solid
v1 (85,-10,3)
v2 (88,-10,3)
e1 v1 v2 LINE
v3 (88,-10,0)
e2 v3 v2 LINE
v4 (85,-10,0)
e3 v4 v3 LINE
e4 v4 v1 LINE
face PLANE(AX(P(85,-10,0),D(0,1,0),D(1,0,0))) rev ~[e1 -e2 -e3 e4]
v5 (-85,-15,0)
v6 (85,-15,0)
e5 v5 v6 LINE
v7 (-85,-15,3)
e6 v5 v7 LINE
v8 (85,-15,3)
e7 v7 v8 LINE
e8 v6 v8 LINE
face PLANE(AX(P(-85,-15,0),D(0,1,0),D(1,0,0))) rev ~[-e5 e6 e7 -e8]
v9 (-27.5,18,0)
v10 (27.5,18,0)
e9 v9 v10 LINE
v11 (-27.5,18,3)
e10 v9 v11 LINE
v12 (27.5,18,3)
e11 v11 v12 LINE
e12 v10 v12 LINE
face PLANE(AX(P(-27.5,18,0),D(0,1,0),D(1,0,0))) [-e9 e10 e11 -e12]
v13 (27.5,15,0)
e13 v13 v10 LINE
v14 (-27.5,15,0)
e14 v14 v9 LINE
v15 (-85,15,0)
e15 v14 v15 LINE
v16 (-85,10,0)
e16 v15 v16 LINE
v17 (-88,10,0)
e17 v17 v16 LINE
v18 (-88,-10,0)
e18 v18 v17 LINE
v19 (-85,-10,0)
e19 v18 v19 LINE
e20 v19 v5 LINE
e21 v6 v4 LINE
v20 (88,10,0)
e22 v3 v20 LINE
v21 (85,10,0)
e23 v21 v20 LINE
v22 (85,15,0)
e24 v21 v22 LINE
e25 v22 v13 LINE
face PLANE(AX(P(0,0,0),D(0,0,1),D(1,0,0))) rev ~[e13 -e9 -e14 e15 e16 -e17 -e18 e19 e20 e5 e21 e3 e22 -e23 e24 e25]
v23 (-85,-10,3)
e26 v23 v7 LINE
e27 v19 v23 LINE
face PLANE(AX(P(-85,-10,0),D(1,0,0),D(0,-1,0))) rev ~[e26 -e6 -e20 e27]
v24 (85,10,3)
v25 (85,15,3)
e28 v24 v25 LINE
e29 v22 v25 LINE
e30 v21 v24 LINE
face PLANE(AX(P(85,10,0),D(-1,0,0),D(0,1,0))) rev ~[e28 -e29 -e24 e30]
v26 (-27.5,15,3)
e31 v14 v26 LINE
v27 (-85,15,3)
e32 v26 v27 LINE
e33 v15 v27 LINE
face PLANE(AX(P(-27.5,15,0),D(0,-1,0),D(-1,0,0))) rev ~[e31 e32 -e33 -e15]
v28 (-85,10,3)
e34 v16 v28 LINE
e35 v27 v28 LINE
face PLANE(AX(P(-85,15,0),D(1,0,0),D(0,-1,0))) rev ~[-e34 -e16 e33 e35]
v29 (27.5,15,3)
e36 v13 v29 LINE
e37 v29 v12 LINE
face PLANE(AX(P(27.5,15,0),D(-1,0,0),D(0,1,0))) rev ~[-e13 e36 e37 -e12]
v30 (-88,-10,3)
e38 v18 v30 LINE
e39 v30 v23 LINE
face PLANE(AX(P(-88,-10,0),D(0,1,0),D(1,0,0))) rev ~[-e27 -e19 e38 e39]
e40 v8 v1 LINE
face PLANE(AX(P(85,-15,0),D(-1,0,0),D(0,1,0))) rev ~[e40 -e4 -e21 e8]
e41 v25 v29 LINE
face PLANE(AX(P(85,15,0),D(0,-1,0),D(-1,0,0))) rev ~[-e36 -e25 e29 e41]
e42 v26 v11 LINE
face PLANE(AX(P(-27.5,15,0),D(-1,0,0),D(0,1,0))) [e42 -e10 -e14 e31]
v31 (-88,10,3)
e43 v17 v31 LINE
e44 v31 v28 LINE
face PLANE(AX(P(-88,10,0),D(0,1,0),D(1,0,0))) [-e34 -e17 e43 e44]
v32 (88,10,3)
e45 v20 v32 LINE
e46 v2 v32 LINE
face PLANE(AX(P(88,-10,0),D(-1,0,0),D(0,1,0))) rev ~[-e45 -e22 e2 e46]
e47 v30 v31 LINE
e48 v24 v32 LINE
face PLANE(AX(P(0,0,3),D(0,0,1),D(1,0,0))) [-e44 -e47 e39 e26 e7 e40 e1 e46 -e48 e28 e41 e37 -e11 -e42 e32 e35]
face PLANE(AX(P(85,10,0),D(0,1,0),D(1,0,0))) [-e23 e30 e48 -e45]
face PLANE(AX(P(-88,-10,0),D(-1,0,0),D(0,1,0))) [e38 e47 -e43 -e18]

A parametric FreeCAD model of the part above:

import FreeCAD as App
import Part
import Sketcher
Q = App.Units.Quantity

doc = App.newDocument("Part")
body = doc.addObject("PartDesign::Body", "Body")

sketch1 = doc.addObject("Sketcher::SketchObject", "Sketch")
body.addObject(sketch1)
sketch1.AttachmentSupport = (doc.XY_Plane, [""])
sketch1.MapMode = "FlatFace"
sketch1.addGeometry([
    Part.LineSegment(App.Vector(85, 15, 0), App.Vector(27.5, 15, 0)),
    Part.LineSegment(App.Vector(27.5, 15, 0), App.Vector(27.5, 18, 0)),
    Part.LineSegment(App.Vector(27.5, 18, 0), App.Vector(-27.5, 18, 0)),
    Part.LineSegment(App.Vector(-27.5, 18, 0), App.Vector(-27.5, 15, 0)),
    Part.LineSegment(App.Vector(-27.5, 15, 0), App.Vector(-85, 15, 0)),
    Part.LineSegment(App.Vector(-85, 15, 0), App.Vector(-85, 10, 0)),
    Part.LineSegment(App.Vector(-85, 10, 0), App.Vector(-88, 10, 0)),
    Part.LineSegment(App.Vector(-88, 10, 0), App.Vector(-88, -10, 0)),
    Part.LineSegment(App.Vector(-88, -10, 0), App.Vector(-85, -10, 0)),
    Part.LineSegment(App.Vector(-85, -10, 0), App.Vector(-85, -15, 0)),
    Part.LineSegment(App.Vector(-85, -15, 0), App.Vector(85, -15, 0)),
    Part.LineSegment(App.Vector(85, -15, 0), App.Vector(85, -10, 0)),
    Part.LineSegment(App.Vector(85, -10, 0), App.Vector(88, -10, 0)),
    Part.LineSegment(App.Vector(88, -10, 0), App.Vector(88, 10, 0)),
    Part.LineSegment(App.Vector(88, 10, 0), App.Vector(85, 10, 0)),
    Part.LineSegment(App.Vector(85, 10, 0), App.Vector(85, 15, 0)),
], False)
sketch1.addConstraint([
    Sketcher.Constraint("Coincident", 0, 2, 1, 1),
    Sketcher.Constraint("Coincident", 1, 2, 2, 1),
    Sketcher.Constraint("Coincident", 2, 2, 3, 1),
    Sketcher.Constraint("Coincident", 3, 2, 4, 1),
    Sketcher.Constraint("Coincident", 4, 2, 5, 1),
    Sketcher.Constraint("Coincident", 5, 2, 6, 1),
    Sketcher.Constraint("Coincident", 6, 2, 7, 1),
    Sketcher.Constraint("Coincident", 7, 2, 8, 1),
    Sketcher.Constraint("Coincident", 8, 2, 9, 1),
    Sketcher.Constraint("Coincident", 9, 2, 10, 1),
    Sketcher.Constraint("Coincident", 10, 2, 11, 1),
    Sketcher.Constraint("Coincident", 11, 2, 12, 1),
    Sketcher.Constraint("Coincident", 12, 2, 13, 1),
    Sketcher.Constraint("Coincident", 13, 2, 14, 1),
    Sketcher.Constraint("Coincident", 14, 2, 15, 1),
    Sketcher.Constraint("Coincident", 15, 2, 0, 1),
    Sketcher.Constraint("Horizontal", 0),
    Sketcher.Constraint("Vertical", 1),
    Sketcher.Constraint("Horizontal", 2),
    Sketcher.Constraint("Vertical", 3),
    Sketcher.Constraint("Horizontal", 4),
    Sketcher.Constraint("Vertical", 5),
    Sketcher.Constraint("Horizontal", 6),
    Sketcher.Constraint("Vertical", 7),
    Sketcher.Constraint("Horizontal", 8),
    Sketcher.Constraint("Vertical", 9),
    Sketcher.Constraint("Horizontal", 10),
    Sketcher.Constraint("Vertical", 11),
    Sketcher.Constraint("Horizontal", 12),
    Sketcher.Constraint("Vertical", 13),
    Sketcher.Constraint("Horizontal", 14),
    Sketcher.Constraint("Vertical", 15),
    Sketcher.Constraint("Symmetric", 4, 2, 10, 2, -1, 1),
    Sketcher.Constraint("Symmetric", 6, 2, 12, 2, -1, 1),
    Sketcher.Constraint("Symmetric", 8, 2, 14, 2, -1, 1),
    Sketcher.Constraint("Symmetric", 0, 2, 3, 2, -2),
    Sketcher.Constraint("Symmetric", 8, 2, 11, 2, -2),
    Sketcher.Constraint("Equal", 14, 1),
    Sketcher.Constraint("DistanceX", 2, 2, 2, 1, Q("55 mm")),
    Sketcher.Constraint("DistanceX", 6, 2, 6, 1, Q("3 mm")),
    Sketcher.Constraint("DistanceX", 10, 1, 10, 2, Q("170 mm")),
    Sketcher.Constraint("DistanceY", 5, 2, 5, 1, Q("5 mm")),
    Sketcher.Constraint("DistanceY", 7, 2, 7, 1, Q("20 mm")),
])
pad1 = doc.addObject("PartDesign::Pad", "Pad")
body.addObject(pad1)
pad1.Profile = sketch1
pad1.Length = 3

doc.recompute()
